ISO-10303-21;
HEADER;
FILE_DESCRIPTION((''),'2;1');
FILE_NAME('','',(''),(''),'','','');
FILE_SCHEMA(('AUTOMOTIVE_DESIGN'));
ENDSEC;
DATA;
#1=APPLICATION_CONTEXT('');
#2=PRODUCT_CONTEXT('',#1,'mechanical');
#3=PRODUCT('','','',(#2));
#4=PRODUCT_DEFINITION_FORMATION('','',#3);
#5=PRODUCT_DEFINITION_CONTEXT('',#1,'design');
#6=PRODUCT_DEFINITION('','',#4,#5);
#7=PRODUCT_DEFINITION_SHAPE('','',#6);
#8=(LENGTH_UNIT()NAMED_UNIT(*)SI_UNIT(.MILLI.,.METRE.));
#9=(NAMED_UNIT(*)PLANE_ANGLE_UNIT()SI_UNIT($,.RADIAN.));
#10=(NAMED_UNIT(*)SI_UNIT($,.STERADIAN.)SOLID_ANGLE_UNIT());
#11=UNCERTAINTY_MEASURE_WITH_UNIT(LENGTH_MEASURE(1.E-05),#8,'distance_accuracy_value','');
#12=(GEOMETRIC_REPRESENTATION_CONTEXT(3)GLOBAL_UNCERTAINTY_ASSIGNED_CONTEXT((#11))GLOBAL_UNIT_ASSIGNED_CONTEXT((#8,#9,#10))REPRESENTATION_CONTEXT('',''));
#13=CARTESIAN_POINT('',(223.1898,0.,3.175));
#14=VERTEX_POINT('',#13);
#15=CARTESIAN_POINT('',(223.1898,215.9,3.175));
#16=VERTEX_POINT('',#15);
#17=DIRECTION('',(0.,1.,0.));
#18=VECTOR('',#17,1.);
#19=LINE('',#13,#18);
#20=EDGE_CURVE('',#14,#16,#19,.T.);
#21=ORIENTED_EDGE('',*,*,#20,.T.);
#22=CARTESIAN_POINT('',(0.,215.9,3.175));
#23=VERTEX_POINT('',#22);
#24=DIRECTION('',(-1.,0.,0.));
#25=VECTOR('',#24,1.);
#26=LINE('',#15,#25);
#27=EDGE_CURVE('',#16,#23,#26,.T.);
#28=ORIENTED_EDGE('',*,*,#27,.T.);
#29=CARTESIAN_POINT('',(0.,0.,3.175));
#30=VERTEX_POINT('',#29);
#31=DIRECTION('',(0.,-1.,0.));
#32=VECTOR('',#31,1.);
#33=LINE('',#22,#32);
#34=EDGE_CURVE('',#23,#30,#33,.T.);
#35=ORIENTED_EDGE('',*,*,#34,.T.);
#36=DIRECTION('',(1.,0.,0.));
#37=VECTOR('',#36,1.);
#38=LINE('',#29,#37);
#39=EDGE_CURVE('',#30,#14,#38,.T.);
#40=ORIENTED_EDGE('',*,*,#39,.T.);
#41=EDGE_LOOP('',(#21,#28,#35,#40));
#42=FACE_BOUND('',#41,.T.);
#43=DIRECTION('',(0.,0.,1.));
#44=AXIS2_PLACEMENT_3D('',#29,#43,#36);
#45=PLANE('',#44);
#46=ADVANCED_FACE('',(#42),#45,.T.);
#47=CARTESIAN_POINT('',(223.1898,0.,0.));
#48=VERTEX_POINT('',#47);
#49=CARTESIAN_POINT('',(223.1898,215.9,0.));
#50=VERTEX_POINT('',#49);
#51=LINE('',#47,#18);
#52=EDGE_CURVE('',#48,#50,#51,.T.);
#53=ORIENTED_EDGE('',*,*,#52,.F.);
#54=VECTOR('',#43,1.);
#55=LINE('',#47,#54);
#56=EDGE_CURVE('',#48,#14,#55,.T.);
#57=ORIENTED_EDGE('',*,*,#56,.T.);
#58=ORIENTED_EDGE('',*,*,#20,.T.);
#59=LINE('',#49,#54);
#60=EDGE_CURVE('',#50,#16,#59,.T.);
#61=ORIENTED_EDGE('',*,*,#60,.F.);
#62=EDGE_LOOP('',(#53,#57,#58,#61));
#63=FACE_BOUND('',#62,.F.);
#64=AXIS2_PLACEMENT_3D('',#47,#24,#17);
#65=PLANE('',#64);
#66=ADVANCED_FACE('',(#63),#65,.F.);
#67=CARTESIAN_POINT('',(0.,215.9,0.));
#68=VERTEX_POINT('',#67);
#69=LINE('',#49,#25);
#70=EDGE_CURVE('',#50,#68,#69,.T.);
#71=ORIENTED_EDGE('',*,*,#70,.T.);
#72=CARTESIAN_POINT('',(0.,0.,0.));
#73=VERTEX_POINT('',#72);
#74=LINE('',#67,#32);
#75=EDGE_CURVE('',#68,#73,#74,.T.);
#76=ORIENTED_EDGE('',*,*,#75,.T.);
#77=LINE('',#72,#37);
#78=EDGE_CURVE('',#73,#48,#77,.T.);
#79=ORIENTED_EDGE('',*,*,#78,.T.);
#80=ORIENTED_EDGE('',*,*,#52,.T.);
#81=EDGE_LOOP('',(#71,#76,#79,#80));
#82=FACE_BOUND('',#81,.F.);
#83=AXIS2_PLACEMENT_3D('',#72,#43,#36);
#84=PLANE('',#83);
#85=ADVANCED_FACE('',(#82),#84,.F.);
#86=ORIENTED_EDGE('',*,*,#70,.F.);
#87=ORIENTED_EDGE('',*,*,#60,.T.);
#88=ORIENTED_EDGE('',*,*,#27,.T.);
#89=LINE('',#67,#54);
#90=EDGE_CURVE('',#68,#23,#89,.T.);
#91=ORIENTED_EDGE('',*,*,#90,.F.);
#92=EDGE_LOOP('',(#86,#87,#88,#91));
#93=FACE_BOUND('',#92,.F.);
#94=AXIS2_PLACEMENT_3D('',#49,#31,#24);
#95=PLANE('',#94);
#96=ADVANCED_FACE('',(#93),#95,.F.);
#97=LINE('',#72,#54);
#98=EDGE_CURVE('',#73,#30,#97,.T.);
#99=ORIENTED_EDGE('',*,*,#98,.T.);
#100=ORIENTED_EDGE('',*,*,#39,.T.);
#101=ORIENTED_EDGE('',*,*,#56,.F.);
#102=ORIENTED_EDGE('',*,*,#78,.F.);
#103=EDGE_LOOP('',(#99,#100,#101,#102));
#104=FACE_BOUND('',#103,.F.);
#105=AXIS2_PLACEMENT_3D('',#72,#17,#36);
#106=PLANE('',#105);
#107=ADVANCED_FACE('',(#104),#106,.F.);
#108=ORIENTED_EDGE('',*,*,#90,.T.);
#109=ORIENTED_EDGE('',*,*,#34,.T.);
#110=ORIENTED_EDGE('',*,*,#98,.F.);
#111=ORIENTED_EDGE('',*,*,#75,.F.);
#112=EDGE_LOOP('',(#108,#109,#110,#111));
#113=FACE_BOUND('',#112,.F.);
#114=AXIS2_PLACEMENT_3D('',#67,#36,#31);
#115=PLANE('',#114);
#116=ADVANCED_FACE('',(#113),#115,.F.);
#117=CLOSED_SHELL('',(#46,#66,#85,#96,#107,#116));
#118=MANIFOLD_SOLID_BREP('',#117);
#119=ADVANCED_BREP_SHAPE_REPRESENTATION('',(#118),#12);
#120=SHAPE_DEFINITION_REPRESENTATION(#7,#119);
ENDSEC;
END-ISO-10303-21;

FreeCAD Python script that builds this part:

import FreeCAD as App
import Part
import Sketcher

V = App.Vector
Q = App.Units.Quantity


def add_polygon(sketch, points):
    """Adds a closed chain of lines whose ends are joined by coincident constraints."""
    first, n = sketch.GeometryCount, len(points)
    for a, b in zip(points, points[1:] + points[:1]):
        sketch.addGeometry(Part.LineSegment(App.Vector(*a, 0), App.Vector(*b, 0)), False)
    for i in range(n):
        sketch.addConstraint(Sketcher.Constraint("Coincident", first + i, 2, first + (i + 1) % n, 1))

doc = App.newDocument("Part")
body = doc.addObject("PartDesign::Body", "Body")

# Sketch on XY plane
sketch1 = body.newObject("Sketcher::SketchObject", "Sketch")
sketch1.AttachmentSupport = (doc.getObject("XY_Plane"), [""])
sketch1.MapMode = "FlatFace"
add_polygon(sketch1, [(0, 216), (0, 0), (223, 0), (223, 216)])  # lines 0-3
sketch1.addConstraint([
    Sketcher.Constraint("Vertical", 0),
    Sketcher.Constraint("Horizontal", 1),
    Sketcher.Constraint("Vertical", 2),
    Sketcher.Constraint("Horizontal", 3),
    Sketcher.Constraint("Coincident", 0, 2, -1, 1),
    Sketcher.Constraint("DistanceY", 0, 2, 0, 1, Q("8.5 in")),
    Sketcher.Constraint("DistanceX", 1, 1, 1, 2, Q("8.787 in")),
])
pad1 = body.newObject("PartDesign::Pad", "Pad")
pad1.Profile = sketch1
pad1.Length = Q("0.125 in")

doc.recompute()
